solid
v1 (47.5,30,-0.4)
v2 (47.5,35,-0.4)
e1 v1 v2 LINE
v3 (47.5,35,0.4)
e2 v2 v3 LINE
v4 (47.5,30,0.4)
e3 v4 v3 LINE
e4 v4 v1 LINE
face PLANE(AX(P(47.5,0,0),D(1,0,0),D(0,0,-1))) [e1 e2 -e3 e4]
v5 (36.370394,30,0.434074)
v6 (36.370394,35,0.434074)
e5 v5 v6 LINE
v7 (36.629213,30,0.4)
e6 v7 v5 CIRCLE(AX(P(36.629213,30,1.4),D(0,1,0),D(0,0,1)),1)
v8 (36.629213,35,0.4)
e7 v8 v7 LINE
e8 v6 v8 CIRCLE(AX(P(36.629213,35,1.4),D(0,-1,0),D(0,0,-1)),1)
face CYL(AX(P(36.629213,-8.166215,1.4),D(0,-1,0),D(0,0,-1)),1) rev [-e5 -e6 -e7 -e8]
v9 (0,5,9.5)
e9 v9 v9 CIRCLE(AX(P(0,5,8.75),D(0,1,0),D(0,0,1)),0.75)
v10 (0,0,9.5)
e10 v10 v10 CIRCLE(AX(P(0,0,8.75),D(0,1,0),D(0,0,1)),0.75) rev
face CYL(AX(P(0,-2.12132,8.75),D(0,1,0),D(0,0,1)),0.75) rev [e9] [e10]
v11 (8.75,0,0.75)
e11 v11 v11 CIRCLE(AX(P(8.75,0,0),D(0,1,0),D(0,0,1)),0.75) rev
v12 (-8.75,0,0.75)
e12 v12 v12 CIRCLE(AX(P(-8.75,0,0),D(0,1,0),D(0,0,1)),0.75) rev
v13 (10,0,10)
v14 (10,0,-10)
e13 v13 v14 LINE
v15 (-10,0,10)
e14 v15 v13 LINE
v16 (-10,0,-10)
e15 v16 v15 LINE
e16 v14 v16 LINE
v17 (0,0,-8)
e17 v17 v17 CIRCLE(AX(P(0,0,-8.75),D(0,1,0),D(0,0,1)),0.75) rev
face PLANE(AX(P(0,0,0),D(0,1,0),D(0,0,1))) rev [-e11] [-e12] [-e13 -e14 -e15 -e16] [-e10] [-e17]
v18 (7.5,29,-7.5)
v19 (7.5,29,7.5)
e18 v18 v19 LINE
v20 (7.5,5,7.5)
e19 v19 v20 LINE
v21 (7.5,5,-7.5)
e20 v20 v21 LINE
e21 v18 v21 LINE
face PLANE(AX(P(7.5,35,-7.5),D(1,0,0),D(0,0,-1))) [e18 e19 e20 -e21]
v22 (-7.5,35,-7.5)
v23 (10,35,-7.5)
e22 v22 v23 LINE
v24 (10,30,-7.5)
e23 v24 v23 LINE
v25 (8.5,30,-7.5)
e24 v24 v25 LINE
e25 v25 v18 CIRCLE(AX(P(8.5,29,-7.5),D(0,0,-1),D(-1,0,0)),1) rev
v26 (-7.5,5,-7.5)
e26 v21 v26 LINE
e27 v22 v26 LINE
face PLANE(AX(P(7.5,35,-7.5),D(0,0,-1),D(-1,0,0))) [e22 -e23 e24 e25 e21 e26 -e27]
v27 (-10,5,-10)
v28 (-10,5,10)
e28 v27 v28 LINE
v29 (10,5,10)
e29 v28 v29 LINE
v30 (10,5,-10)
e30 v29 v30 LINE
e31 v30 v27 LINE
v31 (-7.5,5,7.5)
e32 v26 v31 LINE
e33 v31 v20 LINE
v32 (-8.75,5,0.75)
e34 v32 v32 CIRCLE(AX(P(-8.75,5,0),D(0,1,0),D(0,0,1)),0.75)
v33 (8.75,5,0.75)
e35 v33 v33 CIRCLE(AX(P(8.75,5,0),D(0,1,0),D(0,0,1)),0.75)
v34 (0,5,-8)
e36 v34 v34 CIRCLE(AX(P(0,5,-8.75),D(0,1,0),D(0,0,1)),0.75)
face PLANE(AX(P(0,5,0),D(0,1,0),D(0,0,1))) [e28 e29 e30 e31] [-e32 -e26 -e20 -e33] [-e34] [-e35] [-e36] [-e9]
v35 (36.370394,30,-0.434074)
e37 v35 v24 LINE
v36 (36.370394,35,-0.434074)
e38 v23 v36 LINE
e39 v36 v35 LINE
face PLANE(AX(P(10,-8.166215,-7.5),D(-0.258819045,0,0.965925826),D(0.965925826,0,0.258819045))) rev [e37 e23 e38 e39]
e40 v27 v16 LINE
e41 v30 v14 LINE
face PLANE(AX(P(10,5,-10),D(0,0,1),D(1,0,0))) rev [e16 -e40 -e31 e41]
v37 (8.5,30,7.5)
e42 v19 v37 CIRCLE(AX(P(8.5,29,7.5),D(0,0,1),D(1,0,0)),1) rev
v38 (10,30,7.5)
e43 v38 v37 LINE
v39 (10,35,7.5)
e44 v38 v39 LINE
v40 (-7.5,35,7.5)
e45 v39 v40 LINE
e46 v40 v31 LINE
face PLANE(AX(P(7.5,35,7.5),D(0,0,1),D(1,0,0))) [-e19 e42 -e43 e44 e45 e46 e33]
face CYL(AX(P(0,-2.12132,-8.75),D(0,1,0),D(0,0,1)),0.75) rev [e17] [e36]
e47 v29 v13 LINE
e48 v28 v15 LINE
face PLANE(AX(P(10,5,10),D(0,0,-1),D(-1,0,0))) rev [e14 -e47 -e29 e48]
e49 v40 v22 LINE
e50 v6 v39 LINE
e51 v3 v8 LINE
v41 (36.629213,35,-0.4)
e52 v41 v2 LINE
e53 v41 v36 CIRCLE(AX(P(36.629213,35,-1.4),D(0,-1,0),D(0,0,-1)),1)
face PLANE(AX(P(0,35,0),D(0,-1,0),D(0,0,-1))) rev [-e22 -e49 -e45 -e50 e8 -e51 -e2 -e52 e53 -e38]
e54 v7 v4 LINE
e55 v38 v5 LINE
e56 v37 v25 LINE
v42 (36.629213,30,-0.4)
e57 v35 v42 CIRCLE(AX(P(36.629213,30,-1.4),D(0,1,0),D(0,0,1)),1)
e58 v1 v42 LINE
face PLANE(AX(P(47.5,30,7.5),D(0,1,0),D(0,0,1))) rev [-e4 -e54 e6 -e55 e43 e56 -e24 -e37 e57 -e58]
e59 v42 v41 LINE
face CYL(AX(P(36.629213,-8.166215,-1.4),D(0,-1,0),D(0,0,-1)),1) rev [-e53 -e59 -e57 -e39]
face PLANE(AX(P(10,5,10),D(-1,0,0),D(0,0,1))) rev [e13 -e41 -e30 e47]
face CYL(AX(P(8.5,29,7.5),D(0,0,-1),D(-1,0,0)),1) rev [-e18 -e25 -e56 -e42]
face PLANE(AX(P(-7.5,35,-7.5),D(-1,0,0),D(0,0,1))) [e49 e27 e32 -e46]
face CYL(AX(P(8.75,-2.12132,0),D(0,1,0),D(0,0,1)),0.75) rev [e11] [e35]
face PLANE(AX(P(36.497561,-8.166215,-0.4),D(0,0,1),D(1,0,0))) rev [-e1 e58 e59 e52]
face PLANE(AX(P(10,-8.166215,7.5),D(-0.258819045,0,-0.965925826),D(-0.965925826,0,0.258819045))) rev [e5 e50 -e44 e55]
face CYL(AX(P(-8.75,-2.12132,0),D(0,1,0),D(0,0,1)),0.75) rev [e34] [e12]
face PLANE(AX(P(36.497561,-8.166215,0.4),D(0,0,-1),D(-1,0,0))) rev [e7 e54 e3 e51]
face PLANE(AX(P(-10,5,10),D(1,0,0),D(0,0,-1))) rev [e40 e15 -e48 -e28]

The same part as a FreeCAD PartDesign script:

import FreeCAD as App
import Part
import Sketcher
from FreeCAD import Vector
Q = App.Units.Quantity


def edges_at(feature, points):
    """Names of the edges that pass closest to the given points."""
    edges = feature.Shape.Edges
    near = lambda p: min(range(len(edges)), key=lambda i: edges[i].distToShape(Part.Vertex(*p))[0])
    return sorted({f"Edge{near(p) + 1}" for p in points})

doc = App.newDocument("Part")
body = doc.addObject("PartDesign::Body", "Body")

# Sketch on XZ plane
sketch1 = body.newObject("Sketcher::SketchObject", "Sketch")
sketch1.AttachmentSupport = (doc.getObject("XZ_Plane"), [""])
sketch1.MapMode = "FlatFace"
sketch1.addGeometry([
    Part.LineSegment(Vector(-10, -10, 0), Vector(-10, 10, 0)),
    Part.LineSegment(Vector(-10, 10, 0), Vector(10, 10, 0)),
    Part.LineSegment(Vector(10, 10, 0), Vector(10, -10, 0)),
    Part.LineSegment(Vector(10, -10, 0), Vector(-10, -10, 0)),
], False)
sketch1.addConstraint([
    Sketcher.Constraint("Coincident", 0, 2, 1, 1),
    Sketcher.Constraint("Coincident", 1, 2, 2, 1),
    Sketcher.Constraint("Coincident", 2, 2, 3, 1),
    Sketcher.Constraint("Coincident", 3, 2, 0, 1),
    Sketcher.Constraint("Vertical", 0),
    Sketcher.Constraint("Horizontal", 1),
    Sketcher.Constraint("Vertical", 2),
    Sketcher.Constraint("Horizontal", 3),
    Sketcher.Constraint("Symmetric", 0, 2, 2, 2, -1, 1),
    Sketcher.Constraint("Equal", 3, 0),
    Sketcher.Constraint("DistanceX", 1, 1, 1, 2, Q("20 mm")),
])
pad1 = body.newObject("PartDesign::Pad", "Pad")
pad1.Profile = sketch1
pad1.Length = 5
pad1.Reversed = True

# Sketch on XZ plane
sketch2 = body.newObject("Sketcher::SketchObject", "Sketch001")
sketch2.AttachmentSupport = (doc.getObject("XZ_Plane"), [""])
sketch2.MapMode = "FlatFace"
sketch2.addGeometry([
    Part.LineSegment(Vector(8, -8, 0), Vector(8, 8, 0)),
    Part.LineSegment(Vector(8, 8, 0), Vector(-8, 8, 0)),
    Part.LineSegment(Vector(-8, 8, 0), Vector(-8, -8, 0)),
    Part.LineSegment(Vector(-8, -8, 0), Vector(8, -8, 0)),
], False)
sketch2.addConstraint([
    Sketcher.Constraint("Coincident", 0, 2, 1, 1),
    Sketcher.Constraint("Coincident", 1, 2, 2, 1),
    Sketcher.Constraint("Coincident", 2, 2, 3, 1),
    Sketcher.Constraint("Coincident", 3, 2, 0, 1),
    Sketcher.Constraint("Vertical", 0),
    Sketcher.Constraint("Horizontal", 1),
    Sketcher.Constraint("Vertical", 2),
    Sketcher.Constraint("Horizontal", 3),
    Sketcher.Constraint("Symmetric", 0, 2, 2, 2, -1, 1),
    Sketcher.Constraint("Equal", 3, 0),
    Sketcher.Constraint("DistanceX", 1, 2, 1, 1, Q("15 mm")),
])
pad2 = body.newObject("PartDesign::Pad", "Pad001")
pad2.Profile = sketch2
pad2.Length = 35
pad2.Reversed = True

# Sketch on XZ plane
sketch3 = body.newObject("Sketcher::SketchObject", "Sketch002")
sketch3.AttachmentSupport = (doc.getObject("XZ_Plane"), [""])
sketch3.MapMode = "FlatFace"
sketch3.AttachmentOffset = App.Placement(Vector(0, 0, -5), App.Rotation())
sketch3.addGeometry([
    Part.Circle(Vector(-8.8, 0, 0), Vector(0, 0, 1), 0.8),
    Part.Circle(Vector(0, -8.8, 0), Vector(0, 0, 1), 0.8),
    Part.Circle(Vector(8.8, 0, 0), Vector(0, 0, 1), 0.8),
    Part.Circle(Vector(0, 8.8, 0), Vector(0, 0, 1), 0.8),
], False)
sketch3.addConstraint([
    Sketcher.Constraint("Equal", 0, 1),
    Sketcher.Constraint("Equal", 1, 2),
    Sketcher.Constraint("Equal", 2, 3),
    Sketcher.Constraint("Symmetric", 0, 3, 2, 3, -1, 1),
    Sketcher.Constraint("Symmetric", 1, 3, 3, 3, -1, 1),
    Sketcher.Constraint("PointOnObject", 0, 3, -1),
    Sketcher.Constraint("PointOnObject", 1, 3, -2),
    Sketcher.Constraint("Diameter", 0, Q("1.5 mm")),
    Sketcher.Constraint("DistanceX", 0, 3, 2, 3, Q("17.5 mm")),
    Sketcher.Constraint("DistanceY", 1, 3, 3, 3, Q("17.5 mm")),
])
pocket1 = body.newObject("PartDesign::Pocket", "Pocket")
pocket1.Profile = sketch3
pocket1.Length = 5
pocket1.Reversed = True

# Sketch on YZ plane
sketch4 = body.newObject("Sketcher::SketchObject", "Sketch003")
sketch4.AttachmentSupport = (doc.getObject("YZ_Plane"), [""])
sketch4.MapMode = "FlatFace"
sketch4.AttachmentOffset = App.Placement(Vector(0, 0, 7.5), App.Rotation())
sketch4.addGeometry([
    Part.LineSegment(Vector(35, 8, 0), Vector(30, 8, 0)),
    Part.LineSegment(Vector(30, 8, 0), Vector(30, -8, 0)),
    Part.LineSegment(Vector(30, -8, 0), Vector(35, -8, 0)),
    Part.LineSegment(Vector(35, -8, 0), Vector(35, 8, 0)),
], False)
sketch4.addConstraint([
    Sketcher.Constraint("Coincident", 0, 2, 1, 1),
    Sketcher.Constraint("Coincident", 1, 2, 2, 1),
    Sketcher.Constraint("Coincident", 2, 2, 3, 1),
    Sketcher.Constraint("Coincident", 3, 2, 0, 1),
    Sketcher.Constraint("Horizontal", 0),
    Sketcher.Constraint("Vertical", 1),
    Sketcher.Constraint("Horizontal", 2),
    Sketcher.Constraint("Vertical", 3),
    Sketcher.Constraint("DistanceX", 0, 2, 0, 1, Q("5 mm")),
    Sketcher.Constraint("DistanceY", 1, 2, 1, 1, Q("15 mm")),
    Sketcher.Constraint("DistanceX", -1, 1, 0, 2, Q("30 mm")),
    Sketcher.Constraint("DistanceY", -1, 1, 0, 2, Q("7.5 mm")),
])
pad3 = body.newObject("PartDesign::Pad", "Pad002")
pad3.Profile = sketch4
pad3.Length = 40

# Sketch on XZ plane
sketch5 = body.newObject("Sketcher::SketchObject", "Sketch004")
sketch5.AttachmentSupport = (doc.getObject("XZ_Plane"), [""])
sketch5.MapMode = "FlatFace"
sketch5.AttachmentOffset = App.Placement(Vector(0, 0, -35), App.Rotation())
sketch5.addGeometry([
    Part.LineSegment(Vector(10, -7.5, 0), Vector(36.497561, -0.4, 0)),  # 0
    Part.LineSegment(Vector(36.497561, -0.4, 0), Vector(47.5, -0.4, 0)),  # 1
    Part.LineSegment(Vector(47.5, -0.4, 0), Vector(47.5, -7.5, 0)),  # 2
    Part.LineSegment(Vector(47.5, -7.5, 0), Vector(10, -7.5, 0)),  # 3
    Part.LineSegment(Vector(47.5, 0.4, 0), Vector(36.497561, 0.4, 0)),  # 4
    Part.LineSegment(Vector(36.497561, 0.4, 0), Vector(10, 7.5, 0)),  # 5
    Part.LineSegment(Vector(10, 7.5, 0), Vector(47.5, 7.5, 0)),  # 6
    Part.LineSegment(Vector(47.5, 7.5, 0), Vector(47.5, 0.4, 0)),  # 7
], False)
sketch5.addConstraint([
    Sketcher.Constraint("Coincident", 0, 2, 1, 1),
    Sketcher.Constraint("Coincident", 1, 2, 2, 1),
    Sketcher.Constraint("Coincident", 2, 2, 3, 1),
    Sketcher.Constraint("Coincident", 3, 2, 0, 1),
    Sketcher.Constraint("Coincident", 4, 2, 5, 1),
    Sketcher.Constraint("Coincident", 5, 2, 6, 1),
    Sketcher.Constraint("Coincident", 6, 2, 7, 1),
    Sketcher.Constraint("Coincident", 7, 2, 4, 1),
    Sketcher.Constraint("Horizontal", 1),
    Sketcher.Constraint("Vertical", 2),
    Sketcher.Constraint("Horizontal", 3),
    Sketcher.Constraint("Horizontal", 4),
    Sketcher.Constraint("Horizontal", 6),
    Sketcher.Constraint("Vertical", 7),
    Sketcher.Constraint("Symmetric", 0, 2, 4, 2, -1),
    Sketcher.Constraint("Symmetric", 3, 2, 5, 2, -1),
    Sketcher.Constraint("Vertical", 2, 2, 6, 2),
    Sketcher.Constraint("Angle", 0, Q("15 deg")),
    Sketcher.Constraint("DistanceX", 3, 2, 3, 1, Q("37.5 mm")),
    Sketcher.Constraint("DistanceY", 2, 2, 2, 1, Q("7.1 mm")),
    Sketcher.Constraint("DistanceX", -1, 1, 3, 2, Q("10 mm")),
    Sketcher.Constraint("DistanceY", 3, 2, 5, 2, Q("15 mm")),
])
pocket2 = body.newObject("PartDesign::Pocket", "Pocket001")
pocket2.Profile = sketch5
pocket2.Length = 5
pocket2.Reversed = True
doc.recompute()

fillet = body.newObject("PartDesign::Fillet", "Fillet")
fillet.Base = (pocket2, edges_at(pocket2, [(7.5, 30, 0), (36.498, 32.5, -0.4), (36.498, 32.5, 0.4)]))
fillet.Radius = 1

doc.recompute()
